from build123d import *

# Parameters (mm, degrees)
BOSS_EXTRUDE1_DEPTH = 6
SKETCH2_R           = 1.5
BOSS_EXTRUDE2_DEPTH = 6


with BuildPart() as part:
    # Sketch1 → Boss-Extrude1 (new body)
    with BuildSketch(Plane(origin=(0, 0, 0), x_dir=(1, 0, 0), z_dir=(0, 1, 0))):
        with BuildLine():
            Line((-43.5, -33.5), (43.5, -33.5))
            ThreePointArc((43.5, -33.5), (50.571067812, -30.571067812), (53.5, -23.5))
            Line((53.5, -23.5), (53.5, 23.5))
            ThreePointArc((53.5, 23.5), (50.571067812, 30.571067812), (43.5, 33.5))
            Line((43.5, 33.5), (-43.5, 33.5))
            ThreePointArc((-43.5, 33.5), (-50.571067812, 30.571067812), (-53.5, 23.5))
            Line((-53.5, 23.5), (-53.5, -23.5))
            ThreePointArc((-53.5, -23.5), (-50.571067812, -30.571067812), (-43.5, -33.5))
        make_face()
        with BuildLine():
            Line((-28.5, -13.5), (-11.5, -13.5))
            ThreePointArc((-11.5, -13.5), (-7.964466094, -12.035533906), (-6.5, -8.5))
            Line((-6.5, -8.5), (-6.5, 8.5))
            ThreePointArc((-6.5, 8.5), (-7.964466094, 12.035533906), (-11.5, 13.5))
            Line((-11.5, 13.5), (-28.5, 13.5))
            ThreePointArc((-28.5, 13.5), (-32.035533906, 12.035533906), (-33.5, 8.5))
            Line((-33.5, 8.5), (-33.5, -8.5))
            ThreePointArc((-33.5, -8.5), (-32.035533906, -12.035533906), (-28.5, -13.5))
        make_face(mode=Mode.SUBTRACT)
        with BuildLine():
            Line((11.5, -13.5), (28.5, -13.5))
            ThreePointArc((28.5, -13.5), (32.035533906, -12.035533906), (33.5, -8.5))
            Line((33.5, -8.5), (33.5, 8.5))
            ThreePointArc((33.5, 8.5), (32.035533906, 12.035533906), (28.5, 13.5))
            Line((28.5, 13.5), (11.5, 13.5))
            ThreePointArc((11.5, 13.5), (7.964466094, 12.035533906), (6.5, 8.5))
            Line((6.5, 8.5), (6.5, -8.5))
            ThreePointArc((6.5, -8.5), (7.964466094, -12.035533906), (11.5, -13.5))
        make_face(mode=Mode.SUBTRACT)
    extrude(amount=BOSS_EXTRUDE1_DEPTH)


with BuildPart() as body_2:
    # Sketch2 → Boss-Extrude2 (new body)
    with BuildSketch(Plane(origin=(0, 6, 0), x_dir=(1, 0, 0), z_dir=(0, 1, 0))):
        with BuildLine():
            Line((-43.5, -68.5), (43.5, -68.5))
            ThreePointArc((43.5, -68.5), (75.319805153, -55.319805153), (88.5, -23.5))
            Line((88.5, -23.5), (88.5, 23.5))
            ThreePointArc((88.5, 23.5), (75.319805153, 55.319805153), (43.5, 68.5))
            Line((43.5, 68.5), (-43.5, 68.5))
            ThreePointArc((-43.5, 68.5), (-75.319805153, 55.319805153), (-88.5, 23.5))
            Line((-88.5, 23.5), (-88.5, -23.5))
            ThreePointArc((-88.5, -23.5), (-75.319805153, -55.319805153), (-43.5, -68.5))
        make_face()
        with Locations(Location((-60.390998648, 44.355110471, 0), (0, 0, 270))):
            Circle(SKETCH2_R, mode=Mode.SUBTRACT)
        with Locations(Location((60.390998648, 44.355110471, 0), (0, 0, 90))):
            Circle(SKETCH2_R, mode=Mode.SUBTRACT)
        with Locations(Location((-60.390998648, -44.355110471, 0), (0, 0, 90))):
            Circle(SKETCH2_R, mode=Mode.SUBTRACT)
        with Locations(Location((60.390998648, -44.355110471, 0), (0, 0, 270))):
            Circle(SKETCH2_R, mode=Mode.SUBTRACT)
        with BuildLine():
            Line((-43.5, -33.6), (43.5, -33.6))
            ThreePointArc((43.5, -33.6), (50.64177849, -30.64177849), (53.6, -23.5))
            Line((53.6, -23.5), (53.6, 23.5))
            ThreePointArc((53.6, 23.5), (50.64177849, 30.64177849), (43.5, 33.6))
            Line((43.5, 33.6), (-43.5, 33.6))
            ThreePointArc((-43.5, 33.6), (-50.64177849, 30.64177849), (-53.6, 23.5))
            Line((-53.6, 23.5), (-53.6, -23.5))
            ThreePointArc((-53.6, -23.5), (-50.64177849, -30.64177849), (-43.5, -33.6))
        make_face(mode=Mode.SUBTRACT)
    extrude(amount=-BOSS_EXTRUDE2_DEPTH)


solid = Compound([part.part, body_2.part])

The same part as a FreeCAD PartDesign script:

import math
import FreeCAD as App
import Part
import Sketcher

V = App.Vector
Q = App.Units.Quantity

doc = App.newDocument("Part")
body = doc.addObject("PartDesign::Body", "Body")

sketch1 = doc.addObject("Sketcher::SketchObject", "Sketch")
body.addObject(sketch1)
sketch1.AttachmentSupport = (doc.XZ_Plane, [""])
sketch1.MapMode = "FlatFace"
sketch1.addGeometry(Part.LineSegment(V(-44, 34, 0), V(44, 34, 0)), False)
sketch1.addGeometry(Part.ArcOfCircle(Part.Circle(V(44, 24, 0), V(0, 0, 1), 10), math.radians(0), math.radians(90)), False)
sketch1.addGeometry(Part.LineSegment(V(54, 24, 0), V(54, -24, 0)), False)
sketch1.addGeometry(Part.ArcOfCircle(Part.Circle(V(44, -24, 0), V(0, 0, 1), 10), math.radians(-90), math.radians(0)), False)
sketch1.addGeometry(Part.LineSegment(V(44, -34, 0), V(-44, -34, 0)), False)
sketch1.addGeometry(Part.ArcOfCircle(Part.Circle(V(-44, -24, 0), V(0, 0, 1), 10), math.radians(180), math.radians(270)), False)
sketch1.addGeometry(Part.LineSegment(V(-54, -24, 0), V(-54, 24, 0)), False)
sketch1.addGeometry(Part.ArcOfCircle(Part.Circle(V(-44, 24, 0), V(0, 0, 1), 10), math.radians(90), math.radians(180)), False)
sketch1.addGeometry(Part.LineSegment(V(-12, 14, 0), V(-28, 14, 0)), False)
sketch1.addGeometry(Part.ArcOfCircle(Part.Circle(V(-28, 8, 0), V(0, 0, 1), 5), math.radians(90), math.radians(180)), False)
sketch1.addGeometry(Part.LineSegment(V(-34, 8, 0), V(-34, -8, 0)), False)
sketch1.addGeometry(Part.ArcOfCircle(Part.Circle(V(-28, -8, 0), V(0, 0, 1), 5), math.radians(180), math.radians(270)), False)
sketch1.addGeometry(Part.LineSegment(V(-28, -14, 0), V(-12, -14, 0)), False)
sketch1.addGeometry(Part.ArcOfCircle(Part.Circle(V(-12, -8, 0), V(0, 0, 1), 5), math.radians(-90), math.radians(0)), False)
sketch1.addGeometry(Part.LineSegment(V(-6, -8, 0), V(-6, 8, 0)), False)
sketch1.addGeometry(Part.ArcOfCircle(Part.Circle(V(-12, 8, 0), V(0, 0, 1), 5), math.radians(0), math.radians(90)), False)
sketch1.addGeometry(Part.LineSegment(V(28, 14, 0), V(12, 14, 0)), False)
sketch1.addGeometry(Part.ArcOfCircle(Part.Circle(V(12, 8, 0), V(0, 0, 1), 5), math.radians(90), math.radians(180)), False)
sketch1.addGeometry(Part.LineSegment(V(6, 8, 0), V(6, -8, 0)), False)
sketch1.addGeometry(Part.ArcOfCircle(Part.Circle(V(12, -8, 0), V(0, 0, 1), 5), math.radians(180), math.radians(270)), False)
sketch1.addGeometry(Part.LineSegment(V(12, -14, 0), V(28, -14, 0)), False)
sketch1.addGeometry(Part.ArcOfCircle(Part.Circle(V(28, -8, 0), V(0, 0, 1), 5), math.radians(-90), math.radians(0)), False)
sketch1.addGeometry(Part.LineSegment(V(34, -8, 0), V(34, 8, 0)), False)
sketch1.addGeometry(Part.ArcOfCircle(Part.Circle(V(28, 8, 0), V(0, 0, 1), 5), math.radians(0), math.radians(90)), False)
sketch1.addConstraint(Sketcher.Constraint("Tangent", 0, 2, 1, 2))
sketch1.addConstraint(Sketcher.Constraint("Tangent", 1, 1, 2, 1))
sketch1.addConstraint(Sketcher.Constraint("Tangent", 2, 2, 3, 2))
sketch1.addConstraint(Sketcher.Constraint("Tangent", 3, 1, 4, 1))
sketch1.addConstraint(Sketcher.Constraint("Tangent", 4, 2, 5, 2))
sketch1.addConstraint(Sketcher.Constraint("Tangent", 5, 1, 6, 1))
sketch1.addConstraint(Sketcher.Constraint("Tangent", 6, 2, 7, 2))
sketch1.addConstraint(Sketcher.Constraint("Tangent", 7, 1, 0, 1))
sketch1.addConstraint(Sketcher.Constraint("Tangent", 8, 2, 9, 1))
sketch1.addConstraint(Sketcher.Constraint("Tangent", 9, 2, 10, 1))
sketch1.addConstraint(Sketcher.Constraint("Tangent", 10, 2, 11, 1))
sketch1.addConstraint(Sketcher.Constraint("Tangent", 11, 2, 12, 1))
sketch1.addConstraint(Sketcher.Constraint("Tangent", 12, 2, 13, 1))
sketch1.addConstraint(Sketcher.Constraint("Tangent", 13, 2, 14, 1))
sketch1.addConstraint(Sketcher.Constraint("Tangent", 14, 2, 15, 1))
sketch1.addConstraint(Sketcher.Constraint("Tangent", 15, 2, 8, 1))
sketch1.addConstraint(Sketcher.Constraint("Tangent", 16, 2, 17, 1))
sketch1.addConstraint(Sketcher.Constraint("Tangent", 17, 2, 18, 1))
sketch1.addConstraint(Sketcher.Constraint("Tangent", 18, 2, 19, 1))
sketch1.addConstraint(Sketcher.Constraint("Tangent", 19, 2, 20, 1))
sketch1.addConstraint(Sketcher.Constraint("Tangent", 20, 2, 21, 1))
sketch1.addConstraint(Sketcher.Constraint("Tangent", 21, 2, 22, 1))
sketch1.addConstraint(Sketcher.Constraint("Tangent", 22, 2, 23, 1))
sketch1.addConstraint(Sketcher.Constraint("Tangent", 23, 2, 16, 1))
sketch1.addConstraint(Sketcher.Constraint("Horizontal", 0))
sketch1.addConstraint(Sketcher.Constraint("Vertical", 2))
sketch1.addConstraint(Sketcher.Constraint("Horizontal", 4))
sketch1.addConstraint(Sketcher.Constraint("Vertical", 6))
sketch1.addConstraint(Sketcher.Constraint("Horizontal", 8))
sketch1.addConstraint(Sketcher.Constraint("Vertical", 10))
sketch1.addConstraint(Sketcher.Constraint("Horizontal", 12))
sketch1.addConstraint(Sketcher.Constraint("Vertical", 14))
sketch1.addConstraint(Sketcher.Constraint("Horizontal", 16))
sketch1.addConstraint(Sketcher.Constraint("Vertical", 18))
sketch1.addConstraint(Sketcher.Constraint("Horizontal", 20))
sketch1.addConstraint(Sketcher.Constraint("Vertical", 22))
sketch1.addConstraint(Sketcher.Constraint("Equal", 1, 3))
sketch1.addConstraint(Sketcher.Constraint("Equal", 3, 5))
sketch1.addConstraint(Sketcher.Constraint("Equal", 5, 7))
sketch1.addConstraint(Sketcher.Constraint("Equal", 9, 11))
sketch1.addConstraint(Sketcher.Constraint("Equal", 11, 13))
sketch1.addConstraint(Sketcher.Constraint("Equal", 13, 15))
sketch1.addConstraint(Sketcher.Constraint("Equal", 15, 17))
sketch1.addConstraint(Sketcher.Constraint("Equal", 17, 19))
sketch1.addConstraint(Sketcher.Constraint("Equal", 19, 21))
sketch1.addConstraint(Sketcher.Constraint("Equal", 21, 23))
sketch1.addConstraint(Sketcher.Constraint("Symmetric", 1, 3, 5, 3, -1, 1))
sketch1.addConstraint(Sketcher.Constraint("Symmetric", 13, 3, 17, 3, -1, 1))
sketch1.addConstraint(Sketcher.Constraint("Symmetric", 9, 3, 21, 3, -1, 1))
sketch1.addConstraint(Sketcher.Constraint("Horizontal", 15, 3, 17, 3))
sketch1.addConstraint(Sketcher.Constraint("Equal", 20, 10))
sketch1.addConstraint(Sketcher.Constraint("Radius", 1, Q("10 mm")))
sketch1.addConstraint(Sketcher.Constraint("Radius", 9, Q("5 mm")))
sketch1.addConstraint(Sketcher.Constraint("DistanceX", 0, 1, 0, 2, Q("87 mm")))
sketch1.addConstraint(Sketcher.Constraint("DistanceX", 8, 2, 8, 1, Q("17 mm")))
sketch1.addConstraint(Sketcher.Constraint("DistanceY", 2, 2, 2, 1, Q("47 mm")))
sketch1.addConstraint(Sketcher.Constraint("DistanceX", 7, 3, 9, 3, Q("15 mm")))
pad1 = doc.addObject("PartDesign::Pad", "Pad")
body.addObject(pad1)
pad1.Profile = sketch1
pad1.Length = 6
pad1.Reversed = True
body2 = doc.addObject("PartDesign::Body", "Body001")

sketch2 = doc.addObject("Sketcher::SketchObject", "Sketch001")
body2.addObject(sketch2)
sketch2.AttachmentSupport = (doc.getObject("XZ_Plane001"), [""])
sketch2.MapMode = "FlatFace"
sketch2.AttachmentOffset = App.Placement(V(0, 0, -6), App.Rotation())
sketch2.addGeometry(Part.LineSegment(V(-43.5, 68.5, 0), V(43.5, 68.5, 0)), False)
sketch2.addGeometry(Part.ArcOfCircle(Part.Circle(V(43.5, 23.5, 0), V(0, 0, 1), 45), math.radians(0), math.radians(90)), False)
sketch2.addGeometry(Part.LineSegment(V(88.5, 23.5, 0), V(88.5, -23.5, 0)), False)
sketch2.addGeometry(Part.ArcOfCircle(Part.Circle(V(43.5, -23.5, 0), V(0, 0, 1), 45), math.radians(-90), math.radians(0)), False)
sketch2.addGeometry(Part.LineSegment(V(43.5, -68.5, 0), V(-43.5, -68.5, 0)), False)
sketch2.addGeometry(Part.ArcOfCircle(Part.Circle(V(-43.5, -23.5, 0), V(0, 0, 1), 45), math.radians(-180), math.radians(-90)), False)
sketch2.addGeometry(Part.LineSegment(V(-88.5, -23.5, 0), V(-88.5, 23.5, 0)), False)
sketch2.addGeometry(Part.ArcOfCircle(Part.Circle(V(-43.5, 23.5, 0), V(0, 0, 1), 45), math.radians(90), math.radians(180)), False)
sketch2.addGeometry(Part.Circle(V(-60.4, 44.4, 0), V(0, 0, 1), 1.5), False)
sketch2.addGeometry(Part.Circle(V(60.4, 44.4, 0), V(0, 0, 1), 1.5), False)
sketch2.addGeometry(Part.Circle(V(-60.4, -44.4, 0), V(0, 0, 1), 1.5), False)
sketch2.addGeometry(Part.LineSegment(V(43.5, 33.6, 0), V(-43.5, 33.6, 0)), False)
sketch2.addGeometry(Part.ArcOfCircle(Part.Circle(V(-43.5, 23.5, 0), V(0, 0, 1), 10.1), math.radians(90), math.radians(180)), False)
sketch2.addGeometry(Part.LineSegment(V(-53.6, 23.5, 0), V(-53.6, -23.5, 0)), False)
sketch2.addGeometry(Part.ArcOfCircle(Part.Circle(V(-43.5, -23.5, 0), V(0, 0, 1), 10.1), math.radians(180), math.radians(270)), False)
sketch2.addGeometry(Part.LineSegment(V(-43.5, -33.6, 0), V(43.5, -33.6, 0)), False)
sketch2.addGeometry(Part.ArcOfCircle(Part.Circle(V(43.5, -23.5, 0), V(0, 0, 1), 10.1), math.radians(-90), math.radians(0)), False)
sketch2.addGeometry(Part.LineSegment(V(53.6, -23.5, 0), V(53.6, 23.5, 0)), False)
sketch2.addGeometry(Part.ArcOfCircle(Part.Circle(V(43.5, 23.5, 0), V(0, 0, 1), 10.1), math.radians(0), math.radians(90)), False)
sketch2.addGeometry(Part.Circle(V(60.4, -44.4, 0), V(0, 0, 1), 1.5), False)
sketch2.addConstraint(Sketcher.Constraint("Tangent", 0, 2, 1, 2))
sketch2.addConstraint(Sketcher.Constraint("Tangent", 1, 1, 2, 1))
sketch2.addConstraint(Sketcher.Constraint("Tangent", 2, 2, 3, 2))
sketch2.addConstraint(Sketcher.Constraint("Tangent", 3, 1, 4, 1))
sketch2.addConstraint(Sketcher.Constraint("Tangent", 4, 2, 5, 2))
sketch2.addConstraint(Sketcher.Constraint("Tangent", 5, 1, 6, 1))
sketch2.addConstraint(Sketcher.Constraint("Tangent", 6, 2, 7, 2))
sketch2.addConstraint(Sketcher.Constraint("Tangent", 7, 1, 0, 1))
sketch2.addConstraint(Sketcher.Constraint("Tangent", 11, 2, 12, 1))
sketch2.addConstraint(Sketcher.Constraint("Tangent", 12, 2, 13, 1))
sketch2.addConstraint(Sketcher.Constraint("Tangent", 13, 2, 14, 1))
sketch2.addConstraint(Sketcher.Constraint("Tangent", 14, 2, 15, 1))
sketch2.addConstraint(Sketcher.Constraint("Tangent", 15, 2, 16, 1))
sketch2.addConstraint(Sketcher.Constraint("Tangent", 16, 2, 17, 1))
sketch2.addConstraint(Sketcher.Constraint("Tangent", 17, 2, 18, 1))
sketch2.addConstraint(Sketcher.Constraint("Tangent", 18, 2, 11, 1))
sketch2.addConstraint(Sketcher.Constraint("Horizontal", 0))
sketch2.addConstraint(Sketcher.Constraint("Vertical", 2))
sketch2.addConstraint(Sketcher.Constraint("Horizontal", 4))
sketch2.addConstraint(Sketcher.Constraint("Vertical", 6))
sketch2.addConstraint(Sketcher.Constraint("Horizontal", 11))
sketch2.addConstraint(Sketcher.Constraint("Vertical", 13))
sketch2.addConstraint(Sketcher.Constraint("Horizontal", 15))
sketch2.addConstraint(Sketcher.Constraint("Vertical", 17))
sketch2.addConstraint(Sketcher.Constraint("Coincident", 12, 3, 7, 3))
sketch2.addConstraint(Sketcher.Constraint("Coincident", 14, 3, 5, 3))
sketch2.addConstraint(Sketcher.Constraint("Coincident", 16, 3, 3, 3))
sketch2.addConstraint(Sketcher.Constraint("Equal", 1, 3))
sketch2.addConstraint(Sketcher.Constraint("Equal", 3, 5))
sketch2.addConstraint(Sketcher.Constraint("Equal", 5, 7))
sketch2.addConstraint(Sketcher.Constraint("Equal", 8, 9))
sketch2.addConstraint(Sketcher.Constraint("Equal", 9, 10))
sketch2.addConstraint(Sketcher.Constraint("Equal", 16, 18))
sketch2.addConstraint(Sketcher.Constraint("Equal", 10, 19))
sketch2.addConstraint(Sketcher.Constraint("Symmetric", 1, 3, 5, 3, -1, 1))
sketch2.addConstraint(Sketcher.Constraint("Symmetric", 9, 3, 10, 3, -1, 1))
sketch2.addConstraint(Sketcher.Constraint("Symmetric", 8, 3, 19, 3, -1, 1))
sketch2.addConstraint(Sketcher.Constraint("Symmetric", 8, 3, 9, 3, -2))
sketch2.addConstraint(Sketcher.Constraint("Diameter", 8, Q("3 mm")))
sketch2.addConstraint(Sketcher.Constraint("Radius", 1, Q("45 mm")))
sketch2.addConstraint(Sketcher.Constraint("Radius", 12, Q("10.1 mm")))
sketch2.addConstraint(Sketcher.Constraint("DistanceX", 0, 1, 0, 2, Q("87 mm")))
sketch2.addConstraint(Sketcher.Constraint("DistanceY", 2, 2, 2, 1, Q("47 mm")))
sketch2.addConstraint(Sketcher.Constraint("DistanceX", 8, 3, -1, 1, Q("60.390999 mm")))
sketch2.addConstraint(Sketcher.Constraint("DistanceY", -1, 1, 8, 3, Q("44.35511 mm")))
pad2 = doc.addObject("PartDesign::Pad", "Pad001")
body2.addObject(pad2)
pad2.Profile = sketch2
pad2.Length = 6

doc.recompute()
